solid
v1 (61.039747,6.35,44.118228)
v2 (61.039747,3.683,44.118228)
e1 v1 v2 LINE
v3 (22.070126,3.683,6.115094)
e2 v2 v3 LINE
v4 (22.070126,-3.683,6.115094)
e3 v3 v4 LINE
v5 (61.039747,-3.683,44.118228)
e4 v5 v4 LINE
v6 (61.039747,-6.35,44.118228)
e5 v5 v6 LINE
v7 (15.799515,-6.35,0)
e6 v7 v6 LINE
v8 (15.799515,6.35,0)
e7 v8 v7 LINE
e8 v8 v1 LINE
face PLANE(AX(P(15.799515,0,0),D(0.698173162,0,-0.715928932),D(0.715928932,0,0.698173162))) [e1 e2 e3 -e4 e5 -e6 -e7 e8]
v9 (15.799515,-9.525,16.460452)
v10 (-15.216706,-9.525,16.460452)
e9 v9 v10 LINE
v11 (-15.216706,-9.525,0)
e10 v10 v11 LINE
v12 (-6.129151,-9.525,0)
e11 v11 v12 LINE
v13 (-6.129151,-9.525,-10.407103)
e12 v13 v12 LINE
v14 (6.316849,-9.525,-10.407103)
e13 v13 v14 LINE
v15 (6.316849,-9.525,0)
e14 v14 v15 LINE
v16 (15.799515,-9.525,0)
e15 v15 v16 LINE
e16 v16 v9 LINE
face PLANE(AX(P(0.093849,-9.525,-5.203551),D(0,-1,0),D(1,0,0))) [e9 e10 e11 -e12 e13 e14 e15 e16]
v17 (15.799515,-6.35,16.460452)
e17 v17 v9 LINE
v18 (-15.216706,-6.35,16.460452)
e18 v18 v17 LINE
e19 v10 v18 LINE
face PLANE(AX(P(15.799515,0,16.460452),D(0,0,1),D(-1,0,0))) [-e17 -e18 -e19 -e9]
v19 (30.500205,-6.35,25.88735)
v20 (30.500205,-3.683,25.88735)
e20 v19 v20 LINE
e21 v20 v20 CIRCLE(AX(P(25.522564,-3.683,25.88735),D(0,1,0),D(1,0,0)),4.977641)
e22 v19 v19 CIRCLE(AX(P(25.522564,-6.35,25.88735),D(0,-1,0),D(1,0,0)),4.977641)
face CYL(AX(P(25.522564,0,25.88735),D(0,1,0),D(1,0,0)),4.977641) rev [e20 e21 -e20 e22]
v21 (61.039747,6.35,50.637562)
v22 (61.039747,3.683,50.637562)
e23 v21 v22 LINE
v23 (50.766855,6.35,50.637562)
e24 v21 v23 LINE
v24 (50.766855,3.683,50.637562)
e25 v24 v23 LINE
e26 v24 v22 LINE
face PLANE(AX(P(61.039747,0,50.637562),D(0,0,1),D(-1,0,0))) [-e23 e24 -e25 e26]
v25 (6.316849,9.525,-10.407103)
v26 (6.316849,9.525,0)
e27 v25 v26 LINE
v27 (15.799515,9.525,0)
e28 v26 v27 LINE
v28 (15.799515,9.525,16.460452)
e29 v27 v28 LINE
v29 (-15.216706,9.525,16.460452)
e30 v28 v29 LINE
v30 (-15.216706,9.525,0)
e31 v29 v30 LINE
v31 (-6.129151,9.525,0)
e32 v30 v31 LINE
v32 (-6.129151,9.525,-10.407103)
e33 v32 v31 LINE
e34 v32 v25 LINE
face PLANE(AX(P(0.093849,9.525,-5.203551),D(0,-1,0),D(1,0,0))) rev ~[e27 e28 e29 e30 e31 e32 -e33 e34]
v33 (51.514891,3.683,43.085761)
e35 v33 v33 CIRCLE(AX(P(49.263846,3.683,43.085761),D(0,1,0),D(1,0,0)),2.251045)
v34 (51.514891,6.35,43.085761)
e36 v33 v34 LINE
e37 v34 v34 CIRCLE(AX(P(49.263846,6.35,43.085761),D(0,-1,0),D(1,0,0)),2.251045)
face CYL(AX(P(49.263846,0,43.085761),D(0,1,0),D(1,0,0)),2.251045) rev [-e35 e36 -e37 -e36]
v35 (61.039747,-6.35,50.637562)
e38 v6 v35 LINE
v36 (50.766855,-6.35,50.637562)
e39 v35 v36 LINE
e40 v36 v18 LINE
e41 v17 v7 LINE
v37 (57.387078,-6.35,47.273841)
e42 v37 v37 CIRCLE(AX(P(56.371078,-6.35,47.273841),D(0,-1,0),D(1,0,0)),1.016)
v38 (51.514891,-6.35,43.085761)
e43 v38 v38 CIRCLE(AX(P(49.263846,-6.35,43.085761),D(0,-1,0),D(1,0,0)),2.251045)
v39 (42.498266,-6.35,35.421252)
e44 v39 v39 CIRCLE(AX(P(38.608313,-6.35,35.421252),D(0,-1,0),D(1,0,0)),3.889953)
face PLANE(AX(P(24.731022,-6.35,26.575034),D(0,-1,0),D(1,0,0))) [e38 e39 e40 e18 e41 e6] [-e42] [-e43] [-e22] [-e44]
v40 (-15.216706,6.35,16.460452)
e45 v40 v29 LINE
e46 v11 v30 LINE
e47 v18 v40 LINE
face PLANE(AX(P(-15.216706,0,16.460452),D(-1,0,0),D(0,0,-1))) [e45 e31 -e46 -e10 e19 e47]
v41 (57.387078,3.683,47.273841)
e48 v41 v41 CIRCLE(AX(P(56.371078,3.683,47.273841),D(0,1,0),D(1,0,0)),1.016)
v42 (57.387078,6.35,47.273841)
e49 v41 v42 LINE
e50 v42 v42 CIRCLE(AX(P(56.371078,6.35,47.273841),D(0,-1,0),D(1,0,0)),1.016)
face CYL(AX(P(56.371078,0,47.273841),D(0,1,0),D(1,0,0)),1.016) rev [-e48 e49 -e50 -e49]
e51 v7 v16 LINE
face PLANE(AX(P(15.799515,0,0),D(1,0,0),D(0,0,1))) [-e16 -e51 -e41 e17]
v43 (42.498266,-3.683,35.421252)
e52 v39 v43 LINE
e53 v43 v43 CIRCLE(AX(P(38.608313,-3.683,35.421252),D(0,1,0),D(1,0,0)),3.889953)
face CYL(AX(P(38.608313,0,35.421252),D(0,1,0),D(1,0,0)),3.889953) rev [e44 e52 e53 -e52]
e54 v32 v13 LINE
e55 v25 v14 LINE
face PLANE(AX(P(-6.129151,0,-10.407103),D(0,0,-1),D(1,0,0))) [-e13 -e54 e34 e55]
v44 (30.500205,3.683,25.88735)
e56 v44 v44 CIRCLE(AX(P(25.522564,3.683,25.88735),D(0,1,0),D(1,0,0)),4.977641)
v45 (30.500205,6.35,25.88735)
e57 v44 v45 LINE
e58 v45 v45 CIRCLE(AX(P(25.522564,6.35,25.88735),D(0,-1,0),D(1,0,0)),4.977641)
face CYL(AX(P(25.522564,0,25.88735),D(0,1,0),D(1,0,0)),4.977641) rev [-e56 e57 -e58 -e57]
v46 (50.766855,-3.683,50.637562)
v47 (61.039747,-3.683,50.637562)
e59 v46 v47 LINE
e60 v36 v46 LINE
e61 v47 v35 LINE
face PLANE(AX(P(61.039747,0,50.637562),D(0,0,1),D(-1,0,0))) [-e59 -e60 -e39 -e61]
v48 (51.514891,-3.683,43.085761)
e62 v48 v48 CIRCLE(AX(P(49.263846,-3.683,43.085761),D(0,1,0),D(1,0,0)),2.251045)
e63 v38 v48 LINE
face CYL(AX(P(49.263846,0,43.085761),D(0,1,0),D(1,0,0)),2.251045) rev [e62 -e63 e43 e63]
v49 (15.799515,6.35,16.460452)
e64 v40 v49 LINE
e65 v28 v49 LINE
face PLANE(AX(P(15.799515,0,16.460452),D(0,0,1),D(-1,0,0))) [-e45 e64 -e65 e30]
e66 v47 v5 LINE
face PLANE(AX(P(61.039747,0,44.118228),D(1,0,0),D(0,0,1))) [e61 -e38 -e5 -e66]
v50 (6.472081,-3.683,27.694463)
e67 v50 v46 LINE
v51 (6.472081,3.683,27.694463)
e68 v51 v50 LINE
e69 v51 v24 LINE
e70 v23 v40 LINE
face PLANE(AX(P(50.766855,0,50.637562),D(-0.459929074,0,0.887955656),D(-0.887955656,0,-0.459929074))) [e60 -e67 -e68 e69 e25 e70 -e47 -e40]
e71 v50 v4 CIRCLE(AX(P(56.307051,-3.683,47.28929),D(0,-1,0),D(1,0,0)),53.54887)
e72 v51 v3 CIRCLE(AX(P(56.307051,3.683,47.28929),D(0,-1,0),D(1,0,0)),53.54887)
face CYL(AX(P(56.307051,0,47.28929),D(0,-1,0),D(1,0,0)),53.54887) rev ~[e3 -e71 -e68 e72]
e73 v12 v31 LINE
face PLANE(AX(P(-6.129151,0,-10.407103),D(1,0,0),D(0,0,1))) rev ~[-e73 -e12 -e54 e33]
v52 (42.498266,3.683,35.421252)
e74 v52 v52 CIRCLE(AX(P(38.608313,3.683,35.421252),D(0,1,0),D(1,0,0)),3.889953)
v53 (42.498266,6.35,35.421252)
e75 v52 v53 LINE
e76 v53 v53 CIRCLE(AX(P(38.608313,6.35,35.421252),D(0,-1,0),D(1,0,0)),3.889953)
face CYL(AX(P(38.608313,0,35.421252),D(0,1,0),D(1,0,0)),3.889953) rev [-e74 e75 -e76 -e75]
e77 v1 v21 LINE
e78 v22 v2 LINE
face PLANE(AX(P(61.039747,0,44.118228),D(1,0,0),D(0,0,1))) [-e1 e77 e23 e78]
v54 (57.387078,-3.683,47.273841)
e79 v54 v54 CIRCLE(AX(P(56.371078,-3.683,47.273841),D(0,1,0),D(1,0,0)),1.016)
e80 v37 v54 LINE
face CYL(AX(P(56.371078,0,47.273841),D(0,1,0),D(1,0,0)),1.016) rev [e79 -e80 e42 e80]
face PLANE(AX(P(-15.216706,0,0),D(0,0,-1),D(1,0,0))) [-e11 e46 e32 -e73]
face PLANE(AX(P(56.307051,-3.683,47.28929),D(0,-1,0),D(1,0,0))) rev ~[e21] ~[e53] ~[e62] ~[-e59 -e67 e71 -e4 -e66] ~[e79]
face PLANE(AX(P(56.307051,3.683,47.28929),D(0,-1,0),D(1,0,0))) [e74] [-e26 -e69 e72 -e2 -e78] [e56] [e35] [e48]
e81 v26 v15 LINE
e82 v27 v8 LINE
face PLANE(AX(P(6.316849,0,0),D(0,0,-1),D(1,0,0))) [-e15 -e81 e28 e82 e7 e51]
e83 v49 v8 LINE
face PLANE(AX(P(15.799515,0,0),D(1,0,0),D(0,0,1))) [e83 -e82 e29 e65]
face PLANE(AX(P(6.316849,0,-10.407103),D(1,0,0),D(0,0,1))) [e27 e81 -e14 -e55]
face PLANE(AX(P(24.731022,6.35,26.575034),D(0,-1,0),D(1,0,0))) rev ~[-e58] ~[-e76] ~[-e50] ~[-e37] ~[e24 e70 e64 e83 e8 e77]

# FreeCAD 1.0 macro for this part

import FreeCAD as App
import Part
import Sketcher
Q = App.Units.Quantity


def add_polygon(sketch, points):
    """Adds a closed chain of lines whose ends are joined by coincident constraints."""
    first, n = sketch.GeometryCount, len(points)
    for a, b in zip(points, points[1:] + points[:1]):
        sketch.addGeometry(Part.LineSegment(App.Vector(*a, 0), App.Vector(*b, 0)), False)
    for i in range(n):
        sketch.addConstraint(Sketcher.Constraint("Coincident", first + i, 2, first + (i + 1) % n, 1))

doc = App.newDocument("Part")
body = doc.addObject("PartDesign::Body", "Body")

# Sketch on XZ plane
sketch1 = doc.addObject("Sketcher::SketchObject", "Sketch")
body.addObject(sketch1)
sketch1.AttachmentSupport = (doc.XZ_Plane, [""])
sketch1.MapMode = "FlatFace"
add_polygon(sketch1, [(-6, 0), (-6, -10), (6, -10), (6, 0), (16, 0), (16, 16), (-15, 16), (-15, 0)])  # lines 0-7
sketch1.addConstraint(Sketcher.Constraint("Vertical", 0))
sketch1.addConstraint(Sketcher.Constraint("Horizontal", 1))
sketch1.addConstraint(Sketcher.Constraint("Vertical", 2))
sketch1.addConstraint(Sketcher.Constraint("Horizontal", 3))
sketch1.addConstraint(Sketcher.Constraint("Vertical", 4))
sketch1.addConstraint(Sketcher.Constraint("Horizontal", 5))
sketch1.addConstraint(Sketcher.Constraint("Vertical", 6))
sketch1.addConstraint(Sketcher.Constraint("Horizontal", 7))
sketch1.addConstraint(Sketcher.Constraint("PointOnObject", 2, 2, -1))
sketch1.addConstraint(Sketcher.Constraint("PointOnObject", 6, 2, -1))
sketch1.addConstraint(Sketcher.Constraint("DistanceX", 1, 1, 1, 2, Q("0.49 in")))
sketch1.addConstraint(Sketcher.Constraint("DistanceX", 5, 2, 5, 1, 31.016221))
sketch1.addConstraint(Sketcher.Constraint("DistanceY", 4, 1, 4, 2, 16.460452))
sketch1.addConstraint(Sketcher.Constraint("DistanceX", 3, 1, 3, 2, 9.482666))
sketch1.addConstraint(Sketcher.Constraint("DistanceY", 0, 2, 0, 1, 10.407103))
sketch1.addConstraint(Sketcher.Constraint("DistanceX", 0, 2, -1, 1, 6.129151))
pad1 = doc.addObject("PartDesign::Pad", "Pad")
body.addObject(pad1)
pad1.Profile = sketch1
pad1.Length = Q("0.75 in")
pad1.Midplane = True

# Sketch on XZ plane
sketch2 = doc.addObject("Sketcher::SketchObject", "Sketch001")
body.addObject(sketch2)
sketch2.AttachmentSupport = (doc.XZ_Plane, [""])
sketch2.MapMode = "FlatFace"
add_polygon(sketch2, [(15.8, 16.5), (15.8, 0), (61, 44.1), (61, 50.6), (50.8, 50.6), (-15.2, 16.5)])  # lines 0-5
sketch2.addGeometry(Part.Circle(App.Vector(25.5, 25.9, 0), App.Vector(0, 0, 1), 5), False)  # 6
sketch2.addGeometry(Part.Circle(App.Vector(38.6, 35.4, 0), App.Vector(0, 0, 1), 3.9), False)  # 7
sketch2.addGeometry(Part.Circle(App.Vector(49.3, 43.1, 0), App.Vector(0, 0, 1), 2.3), False)  # 8
sketch2.addGeometry(Part.Circle(App.Vector(56.4, 47.3, 0), App.Vector(0, 0, 1), 1), False)  # 9
sketch2.addConstraint(Sketcher.Constraint("Vertical", 0))
sketch2.addConstraint(Sketcher.Constraint("Vertical", 2))
sketch2.addConstraint(Sketcher.Constraint("Horizontal", 3))
sketch2.addConstraint(Sketcher.Constraint("Horizontal", 5))
sketch2.addConstraint(Sketcher.Constraint("PointOnObject", 0, 2, -1))
sketch2.addConstraint(Sketcher.Constraint("Diameter", 9, Q("0.08 in")))
sketch2.addConstraint(Sketcher.Constraint("Diameter", 8, 4.50209))
sketch2.addConstraint(Sketcher.Constraint("Diameter", 6, 9.955282))
sketch2.addConstraint(Sketcher.Constraint("Diameter", 7, 7.779906))
sketch2.addConstraint(Sketcher.Constraint("DistanceX", 3, 2, 3, 1, 10.272892))
sketch2.addConstraint(Sketcher.Constraint("DistanceX", 5, 1, 5, 2, 31.016221))
sketch2.addConstraint(Sketcher.Constraint("DistanceY", 0, 2, 0, 1, 16.460452))
sketch2.addConstraint(Sketcher.Constraint("DistanceX", 0, 2, 7, 3, 22.808798))
sketch2.addConstraint(Sketcher.Constraint("DistanceX", 8, 3, 1, 2, 11.775901))
sketch2.addConstraint(Sketcher.Constraint("DistanceY", 8, 3, 2, 2, 7.551801))
sketch2.addConstraint(Sketcher.Constraint("DistanceY", 4, 2, 6, 3, 9.426898))
sketch2.addConstraint(Sketcher.Constraint("DistanceY", 4, 2, 7, 3, 18.9608))
sketch2.addConstraint(Sketcher.Constraint("DistanceY", 2, 1, 2, 2, 6.519334))
sketch2.addConstraint(Sketcher.Constraint("DistanceY", -1, 1, 8, 3, 43.085761))
sketch2.addConstraint(Sketcher.Constraint("DistanceY", -1, 1, 9, 3, 47.273841))
sketch2.addConstraint(Sketcher.Constraint("DistanceX", 6, 3, 7, 3, 13.085749))
sketch2.addConstraint(Sketcher.Constraint("DistanceX", 8, 3, 9, 3, 7.107232))
sketch2.addConstraint(Sketcher.Constraint("DistanceX", 0, 2, 8, 3, 33.464331))
sketch2.addConstraint(Sketcher.Constraint("DistanceX", -1, 1, 6, 3, 25.522564))
pad2 = doc.addObject("PartDesign::Pad", "Pad001")
body.addObject(pad2)
pad2.Profile = sketch2
pad2.Length = Q("0.5 in")
pad2.Midplane = True

# Sketch on XZ plane
sketch3 = doc.addObject("Sketcher::SketchObject", "Sketch002")
body.addObject(sketch3)
sketch3.AttachmentSupport = (doc.XZ_Plane, [""])
sketch3.MapMode = "FlatFace"
sketch3.addGeometry(Part.Circle(App.Vector(56, 47, 0), App.Vector(0, 0, 1), 54), False)
sketch3.addConstraint(Sketcher.Constraint("Diameter", 0, 107.09774))
sketch3.addConstraint(Sketcher.Constraint("DistanceX", -1, 1, 0, 3, 56.307051))
sketch3.addConstraint(Sketcher.Constraint("DistanceY", -1, 1, 0, 3, 47.28929))
pocket1 = doc.addObject("PartDesign::Pocket", "Pocket")
body.addObject(pocket1)
pocket1.Profile = sketch3
pocket1.Length = Q("0.29 in")
pocket1.Midplane = True

doc.recompute()
